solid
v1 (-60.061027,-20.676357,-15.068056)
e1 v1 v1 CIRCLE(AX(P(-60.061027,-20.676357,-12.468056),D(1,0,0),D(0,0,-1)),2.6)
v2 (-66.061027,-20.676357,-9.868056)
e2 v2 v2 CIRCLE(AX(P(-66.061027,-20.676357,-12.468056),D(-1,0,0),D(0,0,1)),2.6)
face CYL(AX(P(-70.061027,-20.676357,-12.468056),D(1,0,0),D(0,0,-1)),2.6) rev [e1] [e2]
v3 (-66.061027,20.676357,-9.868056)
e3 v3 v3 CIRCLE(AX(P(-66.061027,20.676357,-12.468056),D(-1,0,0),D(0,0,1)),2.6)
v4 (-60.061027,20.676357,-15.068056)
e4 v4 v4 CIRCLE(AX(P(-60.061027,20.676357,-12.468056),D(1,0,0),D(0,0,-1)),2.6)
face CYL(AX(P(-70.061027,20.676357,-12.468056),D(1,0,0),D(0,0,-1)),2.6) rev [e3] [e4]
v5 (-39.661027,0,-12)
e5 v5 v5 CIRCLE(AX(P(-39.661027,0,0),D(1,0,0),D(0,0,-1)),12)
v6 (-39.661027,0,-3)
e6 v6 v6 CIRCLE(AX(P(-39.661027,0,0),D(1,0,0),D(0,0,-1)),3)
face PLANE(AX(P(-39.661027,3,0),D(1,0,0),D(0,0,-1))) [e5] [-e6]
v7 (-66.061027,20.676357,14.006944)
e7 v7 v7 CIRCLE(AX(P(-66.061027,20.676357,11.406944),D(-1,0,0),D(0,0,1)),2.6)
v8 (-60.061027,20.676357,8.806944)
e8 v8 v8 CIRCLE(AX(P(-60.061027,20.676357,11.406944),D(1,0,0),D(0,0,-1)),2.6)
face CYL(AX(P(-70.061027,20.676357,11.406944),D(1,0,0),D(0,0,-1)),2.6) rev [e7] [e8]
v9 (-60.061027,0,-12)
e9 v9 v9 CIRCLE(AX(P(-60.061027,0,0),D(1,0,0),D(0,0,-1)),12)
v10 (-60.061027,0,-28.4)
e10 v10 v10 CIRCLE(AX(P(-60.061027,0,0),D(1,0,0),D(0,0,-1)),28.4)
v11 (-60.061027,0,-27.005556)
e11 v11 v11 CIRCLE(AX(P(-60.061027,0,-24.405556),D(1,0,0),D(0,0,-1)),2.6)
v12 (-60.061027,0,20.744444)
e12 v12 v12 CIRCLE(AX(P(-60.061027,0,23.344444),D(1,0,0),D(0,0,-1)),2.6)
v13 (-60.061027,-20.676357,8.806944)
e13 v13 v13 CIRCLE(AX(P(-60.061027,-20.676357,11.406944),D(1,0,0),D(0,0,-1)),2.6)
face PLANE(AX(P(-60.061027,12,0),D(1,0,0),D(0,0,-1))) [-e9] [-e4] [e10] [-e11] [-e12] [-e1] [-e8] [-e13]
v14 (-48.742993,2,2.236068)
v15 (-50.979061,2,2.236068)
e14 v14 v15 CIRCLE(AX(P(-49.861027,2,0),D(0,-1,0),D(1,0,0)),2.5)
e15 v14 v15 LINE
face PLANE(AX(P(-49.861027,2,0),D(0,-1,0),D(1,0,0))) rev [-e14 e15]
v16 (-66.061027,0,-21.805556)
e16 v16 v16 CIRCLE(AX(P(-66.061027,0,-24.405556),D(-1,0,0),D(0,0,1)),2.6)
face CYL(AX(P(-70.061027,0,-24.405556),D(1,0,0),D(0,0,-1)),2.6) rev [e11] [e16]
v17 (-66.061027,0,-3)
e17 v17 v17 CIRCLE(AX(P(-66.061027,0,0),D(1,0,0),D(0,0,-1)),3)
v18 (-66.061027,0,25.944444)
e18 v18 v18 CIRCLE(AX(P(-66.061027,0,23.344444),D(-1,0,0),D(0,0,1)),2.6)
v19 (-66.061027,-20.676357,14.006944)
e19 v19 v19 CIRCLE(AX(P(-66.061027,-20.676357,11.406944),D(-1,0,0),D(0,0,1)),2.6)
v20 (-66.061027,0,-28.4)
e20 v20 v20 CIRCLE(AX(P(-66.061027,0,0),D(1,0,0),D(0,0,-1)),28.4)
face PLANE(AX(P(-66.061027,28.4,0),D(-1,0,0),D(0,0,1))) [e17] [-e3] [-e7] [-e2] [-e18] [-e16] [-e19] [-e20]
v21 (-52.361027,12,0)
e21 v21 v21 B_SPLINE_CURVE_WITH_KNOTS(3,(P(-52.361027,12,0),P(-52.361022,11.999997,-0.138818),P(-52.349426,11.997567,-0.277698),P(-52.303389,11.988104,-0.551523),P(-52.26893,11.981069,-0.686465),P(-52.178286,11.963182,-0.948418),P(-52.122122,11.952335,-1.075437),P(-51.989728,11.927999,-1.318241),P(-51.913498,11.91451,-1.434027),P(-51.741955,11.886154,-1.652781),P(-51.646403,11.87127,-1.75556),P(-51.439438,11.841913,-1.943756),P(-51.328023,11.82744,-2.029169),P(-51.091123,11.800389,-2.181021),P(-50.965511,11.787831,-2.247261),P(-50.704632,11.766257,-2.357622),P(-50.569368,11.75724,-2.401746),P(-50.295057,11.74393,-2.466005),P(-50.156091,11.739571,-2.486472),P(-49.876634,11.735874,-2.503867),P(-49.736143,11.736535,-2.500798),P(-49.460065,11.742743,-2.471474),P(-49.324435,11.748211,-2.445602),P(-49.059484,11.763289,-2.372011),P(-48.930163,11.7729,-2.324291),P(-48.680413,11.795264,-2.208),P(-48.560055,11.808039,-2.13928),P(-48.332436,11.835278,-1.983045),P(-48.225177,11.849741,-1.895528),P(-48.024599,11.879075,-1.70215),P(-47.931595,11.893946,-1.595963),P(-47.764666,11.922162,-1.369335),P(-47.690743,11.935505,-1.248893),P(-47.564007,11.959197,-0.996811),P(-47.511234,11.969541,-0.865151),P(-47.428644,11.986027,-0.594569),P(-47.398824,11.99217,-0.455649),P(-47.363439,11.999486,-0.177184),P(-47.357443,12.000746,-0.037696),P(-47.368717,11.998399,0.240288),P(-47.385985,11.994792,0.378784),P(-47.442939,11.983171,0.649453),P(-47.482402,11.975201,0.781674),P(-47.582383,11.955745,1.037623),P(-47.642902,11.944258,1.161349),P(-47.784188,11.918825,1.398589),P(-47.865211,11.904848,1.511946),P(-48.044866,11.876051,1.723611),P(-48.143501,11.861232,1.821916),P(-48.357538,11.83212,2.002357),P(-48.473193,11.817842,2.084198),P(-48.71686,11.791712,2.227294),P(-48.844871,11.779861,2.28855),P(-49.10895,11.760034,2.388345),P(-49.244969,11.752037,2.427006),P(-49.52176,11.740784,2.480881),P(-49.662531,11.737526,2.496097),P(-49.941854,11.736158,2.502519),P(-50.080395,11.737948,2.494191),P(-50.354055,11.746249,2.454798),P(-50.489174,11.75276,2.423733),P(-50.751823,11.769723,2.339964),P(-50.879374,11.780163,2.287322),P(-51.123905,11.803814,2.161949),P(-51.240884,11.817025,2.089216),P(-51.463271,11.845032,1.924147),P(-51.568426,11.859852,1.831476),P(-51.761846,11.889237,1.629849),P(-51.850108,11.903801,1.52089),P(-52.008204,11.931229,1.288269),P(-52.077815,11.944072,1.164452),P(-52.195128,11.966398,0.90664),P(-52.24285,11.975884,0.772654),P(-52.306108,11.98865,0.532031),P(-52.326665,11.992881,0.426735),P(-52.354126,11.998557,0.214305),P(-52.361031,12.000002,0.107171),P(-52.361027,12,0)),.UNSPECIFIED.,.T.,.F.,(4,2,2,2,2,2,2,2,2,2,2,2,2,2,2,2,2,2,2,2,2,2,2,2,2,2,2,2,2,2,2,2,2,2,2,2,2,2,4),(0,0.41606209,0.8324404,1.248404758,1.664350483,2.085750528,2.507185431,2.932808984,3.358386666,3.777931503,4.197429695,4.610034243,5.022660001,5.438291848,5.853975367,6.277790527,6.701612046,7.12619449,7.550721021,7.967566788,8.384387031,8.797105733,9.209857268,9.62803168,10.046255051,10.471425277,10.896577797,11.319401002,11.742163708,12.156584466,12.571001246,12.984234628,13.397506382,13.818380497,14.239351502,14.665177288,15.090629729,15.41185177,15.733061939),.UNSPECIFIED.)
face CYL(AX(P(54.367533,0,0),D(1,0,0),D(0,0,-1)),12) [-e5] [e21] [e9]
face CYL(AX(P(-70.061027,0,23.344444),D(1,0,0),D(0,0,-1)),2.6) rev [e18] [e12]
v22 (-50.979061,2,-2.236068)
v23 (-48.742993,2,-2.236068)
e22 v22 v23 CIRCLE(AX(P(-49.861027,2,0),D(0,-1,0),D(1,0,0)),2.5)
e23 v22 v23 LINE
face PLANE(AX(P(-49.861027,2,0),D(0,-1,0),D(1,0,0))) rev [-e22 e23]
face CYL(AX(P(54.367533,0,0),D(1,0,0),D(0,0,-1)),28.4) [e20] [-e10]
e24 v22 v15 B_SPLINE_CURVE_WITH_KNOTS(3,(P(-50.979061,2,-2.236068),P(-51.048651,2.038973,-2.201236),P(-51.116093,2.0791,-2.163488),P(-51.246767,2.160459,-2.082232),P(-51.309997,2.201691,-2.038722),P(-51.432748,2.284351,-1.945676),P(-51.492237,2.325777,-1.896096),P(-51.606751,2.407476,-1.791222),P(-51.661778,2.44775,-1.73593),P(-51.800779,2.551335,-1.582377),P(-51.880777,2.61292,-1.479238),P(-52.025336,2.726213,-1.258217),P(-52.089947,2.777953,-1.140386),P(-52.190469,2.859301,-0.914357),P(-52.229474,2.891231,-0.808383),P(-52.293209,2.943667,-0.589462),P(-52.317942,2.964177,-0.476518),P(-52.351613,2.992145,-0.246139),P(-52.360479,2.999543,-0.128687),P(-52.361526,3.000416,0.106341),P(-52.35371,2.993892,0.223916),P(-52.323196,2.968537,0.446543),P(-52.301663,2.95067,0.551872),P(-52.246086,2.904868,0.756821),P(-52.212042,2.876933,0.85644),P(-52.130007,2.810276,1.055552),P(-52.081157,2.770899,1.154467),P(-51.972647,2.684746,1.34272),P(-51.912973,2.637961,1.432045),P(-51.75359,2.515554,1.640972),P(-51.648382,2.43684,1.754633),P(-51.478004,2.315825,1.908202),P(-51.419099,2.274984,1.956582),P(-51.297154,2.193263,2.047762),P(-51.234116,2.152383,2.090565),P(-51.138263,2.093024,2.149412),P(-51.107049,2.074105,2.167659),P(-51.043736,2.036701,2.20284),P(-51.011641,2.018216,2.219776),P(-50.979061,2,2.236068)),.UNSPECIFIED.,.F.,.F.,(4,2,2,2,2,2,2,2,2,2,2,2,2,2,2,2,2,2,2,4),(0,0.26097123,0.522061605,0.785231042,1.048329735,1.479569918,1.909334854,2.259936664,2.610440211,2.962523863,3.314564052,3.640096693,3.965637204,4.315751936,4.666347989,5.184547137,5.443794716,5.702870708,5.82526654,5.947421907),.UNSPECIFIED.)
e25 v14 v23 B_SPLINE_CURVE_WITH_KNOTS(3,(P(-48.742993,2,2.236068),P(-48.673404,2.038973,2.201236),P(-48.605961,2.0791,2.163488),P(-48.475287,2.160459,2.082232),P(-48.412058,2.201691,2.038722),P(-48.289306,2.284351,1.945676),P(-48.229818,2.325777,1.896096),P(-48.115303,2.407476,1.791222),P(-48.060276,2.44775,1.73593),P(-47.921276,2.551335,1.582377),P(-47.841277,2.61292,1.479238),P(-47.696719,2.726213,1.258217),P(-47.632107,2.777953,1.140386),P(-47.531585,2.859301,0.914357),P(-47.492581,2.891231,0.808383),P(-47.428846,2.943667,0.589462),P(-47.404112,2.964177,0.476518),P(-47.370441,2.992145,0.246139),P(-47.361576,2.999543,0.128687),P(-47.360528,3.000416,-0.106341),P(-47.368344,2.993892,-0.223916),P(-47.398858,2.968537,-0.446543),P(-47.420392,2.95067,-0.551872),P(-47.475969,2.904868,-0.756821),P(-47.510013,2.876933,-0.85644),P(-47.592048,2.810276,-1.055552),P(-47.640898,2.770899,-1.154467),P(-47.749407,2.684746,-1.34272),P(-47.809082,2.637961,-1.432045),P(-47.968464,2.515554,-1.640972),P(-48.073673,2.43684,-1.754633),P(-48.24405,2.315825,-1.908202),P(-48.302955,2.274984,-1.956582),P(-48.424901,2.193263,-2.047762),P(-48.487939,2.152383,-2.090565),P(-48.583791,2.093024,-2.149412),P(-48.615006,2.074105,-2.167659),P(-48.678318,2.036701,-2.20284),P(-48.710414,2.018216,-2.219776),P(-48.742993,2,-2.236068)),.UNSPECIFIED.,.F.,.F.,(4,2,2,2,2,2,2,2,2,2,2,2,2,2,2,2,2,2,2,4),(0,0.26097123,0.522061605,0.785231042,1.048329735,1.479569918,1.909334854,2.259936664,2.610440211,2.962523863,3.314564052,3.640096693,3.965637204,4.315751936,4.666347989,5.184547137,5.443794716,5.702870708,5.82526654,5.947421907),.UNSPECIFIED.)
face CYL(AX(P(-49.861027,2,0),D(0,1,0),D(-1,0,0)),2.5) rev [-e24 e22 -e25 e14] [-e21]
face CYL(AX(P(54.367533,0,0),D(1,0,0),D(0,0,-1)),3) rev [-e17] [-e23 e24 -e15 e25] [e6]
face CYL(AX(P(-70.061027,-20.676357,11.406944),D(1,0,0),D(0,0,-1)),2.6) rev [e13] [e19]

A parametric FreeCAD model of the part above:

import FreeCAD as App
import Part
import Sketcher

V = App.Vector

doc = App.newDocument("Part")
params = doc.addObject("Spreadsheet::Sheet", "Params")
for row, (alias, value) in enumerate([
    ("sketch1_width", "6 mm"),
    ("sketch1_height", "9 mm"),
    ("sketch1_width2", "20.4 mm"),
    ("sketch1_height2", "16.4 mm"),
    ("revolution_angle", "360 deg"),
    ("sketch2_diameter", "5.2 mm"),
    ("pocket1_length", "10 mm"),
    ("sketch3_diameter", "5 mm"),
    ("pocket2_length", "10 mm"),
], start=1):
    params.set(f"A{row}", alias)
    params.set(f"B{row}", "=" + value)
    params.setAlias(f"B{row}", alias)

body = doc.addObject("PartDesign::Body", "Body")

# Sketch on XY plane
sketch1 = doc.addObject("Sketcher::SketchObject", "Sketch")
body.addObject(sketch1)
sketch1.AttachmentSupport = (doc.XY_Plane, [""])
sketch1.MapMode = "FlatFace"
sketch1.addGeometry([
    Part.LineSegment(V(-40, 12, 0), V(-60, 12, 0)),  # 0
    Part.LineSegment(V(-60, 12, 0), V(-60, 28, 0)),  # 1
    Part.LineSegment(V(-60, 28, 0), V(-66, 28, 0)),  # 2
    Part.LineSegment(V(-66, 28, 0), V(-66, 3, 0)),  # 3
    Part.LineSegment(V(-66, 3, 0), V(-40, 3, 0)),  # 4
    Part.LineSegment(V(-40, 3, 0), V(-40, 12, 0)),  # 5
], False)
sketch1.addConstraint([
    Sketcher.Constraint("Coincident", 0, 2, 1, 1),
    Sketcher.Constraint("Coincident", 1, 2, 2, 1),
    Sketcher.Constraint("Coincident", 2, 2, 3, 1),
    Sketcher.Constraint("Coincident", 3, 2, 4, 1),
    Sketcher.Constraint("Coincident", 4, 2, 5, 1),
    Sketcher.Constraint("Coincident", 5, 2, 0, 1),
    Sketcher.Constraint("Horizontal", 0),
    Sketcher.Constraint("Vertical", 1),
    Sketcher.Constraint("Horizontal", 2),
    Sketcher.Constraint("Vertical", 3),
    Sketcher.Constraint("Horizontal", 4),
    Sketcher.Constraint("Vertical", 5),
    Sketcher.Constraint("DistanceX", 2, 2, 2, 1, 6.0),
    Sketcher.Constraint("DistanceY", 5, 1, 5, 2, 9.0),
    Sketcher.Constraint("DistanceX", 0, 2, 0, 1, 20.4),
    Sketcher.Constraint("DistanceY", 1, 1, 1, 2, 16.4),
    Sketcher.Constraint("DistanceY", -1, 1, 0, 2, 12.0),
    Sketcher.Constraint("DistanceX", 0, 2, -1, 1, 60.061027),
])
sketch1.setExpression("Constraints[12]", "Params.sketch1_width")
sketch1.setExpression("Constraints[13]", "Params.sketch1_height")
sketch1.setExpression("Constraints[14]", "Params.sketch1_width2")
sketch1.setExpression("Constraints[15]", "Params.sketch1_height2")
revolution = doc.addObject("PartDesign::Revolution", "Revolution")
body.addObject(revolution)
revolution.Profile = sketch1
revolution.ReferenceAxis = (sketch1, ["H_Axis"])
revolution.setExpression("Angle", "Params.revolution_angle")

# Sketch on YZ plane
sketch2 = doc.addObject("Sketcher::SketchObject", "Sketch001")
body.addObject(sketch2)
sketch2.AttachmentSupport = (doc.YZ_Plane, [""])
sketch2.MapMode = "FlatFace"
sketch2.AttachmentOffset = App.Placement(V(0, 0, -60.061027), App.Rotation())
sketch2.addGeometry([
    Part.Circle(V(0, 23.3, 0), V(0, 0, 1), 2.6),  # 0
    Part.Circle(V(20.7, 11.4, 0), V(0, 0, 1), 2.6),  # 1
    Part.Circle(V(20.7, -12.5, 0), V(0, 0, 1), 2.6),  # 2
    Part.Circle(V(0, -24.4, 0), V(0, 0, 1), 2.6),  # 3
    Part.Circle(V(-20.7, -12.5, 0), V(0, 0, 1), 2.6),  # 4
    Part.Circle(V(-20.7, 11.4, 0), V(0, 0, 1), 2.6),  # 5
], False)
sketch2.addConstraint([
    Sketcher.Constraint("Equal", 0, 1),
    Sketcher.Constraint("Equal", 1, 2),
    Sketcher.Constraint("Equal", 2, 3),
    Sketcher.Constraint("Equal", 3, 4),
    Sketcher.Constraint("Equal", 4, 5),
    Sketcher.Constraint("Symmetric", 2, 3, 4, 3, -2),
    Sketcher.Constraint("Symmetric", 1, 3, 5, 3, -2),
    Sketcher.Constraint("PointOnObject", 0, 3, -2),
    Sketcher.Constraint("PointOnObject", 3, 3, -2),
    Sketcher.Constraint("Vertical", 1, 3, 2, 3),
    Sketcher.Constraint("Diameter", 0, 5.2),
    Sketcher.Constraint("DistanceY", 3, 3, 0, 3, 47.75),
    Sketcher.Constraint("DistanceY", 2, 3, 1, 3, 23.875),
    Sketcher.Constraint("DistanceY", 1, 3, 0, 3, 11.9375),
    Sketcher.Constraint("DistanceY", -1, 1, 0, 3, 23.344444),
    Sketcher.Constraint("DistanceX", -1, 1, 1, 3, 20.676357),
])
sketch2.setExpression("Constraints[10]", "Params.sketch2_diameter")
pocket1 = doc.addObject("PartDesign::Pocket", "Pocket")
body.addObject(pocket1)
pocket1.Profile = sketch2
pocket1.setExpression("Length", "Params.pocket1_length")

# Sketch on XZ plane
sketch3 = doc.addObject("Sketcher::SketchObject", "Sketch002")
body.addObject(sketch3)
sketch3.AttachmentSupport = (doc.XZ_Plane, [""])
sketch3.MapMode = "FlatFace"
sketch3.AttachmentOffset = App.Placement(V(0, 0, -12), App.Rotation())
sketch3.addGeometry(Part.Circle(V(-49.9, 0, 0), V(0, 0, 1), 2.5), False)
sketch3.addConstraint([
    Sketcher.Constraint("PointOnObject", 0, 3, -1),
    Sketcher.Constraint("Diameter", 0, 5.0),
    Sketcher.Constraint("DistanceX", 0, 3, -1, 1, 49.861027),
])
sketch3.setExpression("Constraints[1]", "Params.sketch3_diameter")
pocket2 = doc.addObject("PartDesign::Pocket", "Pocket001")
body.addObject(pocket2)
pocket2.Profile = sketch3
pocket2.setExpression("Length", "Params.pocket2_length")
pocket2.Reversed = True

doc.recompute()
